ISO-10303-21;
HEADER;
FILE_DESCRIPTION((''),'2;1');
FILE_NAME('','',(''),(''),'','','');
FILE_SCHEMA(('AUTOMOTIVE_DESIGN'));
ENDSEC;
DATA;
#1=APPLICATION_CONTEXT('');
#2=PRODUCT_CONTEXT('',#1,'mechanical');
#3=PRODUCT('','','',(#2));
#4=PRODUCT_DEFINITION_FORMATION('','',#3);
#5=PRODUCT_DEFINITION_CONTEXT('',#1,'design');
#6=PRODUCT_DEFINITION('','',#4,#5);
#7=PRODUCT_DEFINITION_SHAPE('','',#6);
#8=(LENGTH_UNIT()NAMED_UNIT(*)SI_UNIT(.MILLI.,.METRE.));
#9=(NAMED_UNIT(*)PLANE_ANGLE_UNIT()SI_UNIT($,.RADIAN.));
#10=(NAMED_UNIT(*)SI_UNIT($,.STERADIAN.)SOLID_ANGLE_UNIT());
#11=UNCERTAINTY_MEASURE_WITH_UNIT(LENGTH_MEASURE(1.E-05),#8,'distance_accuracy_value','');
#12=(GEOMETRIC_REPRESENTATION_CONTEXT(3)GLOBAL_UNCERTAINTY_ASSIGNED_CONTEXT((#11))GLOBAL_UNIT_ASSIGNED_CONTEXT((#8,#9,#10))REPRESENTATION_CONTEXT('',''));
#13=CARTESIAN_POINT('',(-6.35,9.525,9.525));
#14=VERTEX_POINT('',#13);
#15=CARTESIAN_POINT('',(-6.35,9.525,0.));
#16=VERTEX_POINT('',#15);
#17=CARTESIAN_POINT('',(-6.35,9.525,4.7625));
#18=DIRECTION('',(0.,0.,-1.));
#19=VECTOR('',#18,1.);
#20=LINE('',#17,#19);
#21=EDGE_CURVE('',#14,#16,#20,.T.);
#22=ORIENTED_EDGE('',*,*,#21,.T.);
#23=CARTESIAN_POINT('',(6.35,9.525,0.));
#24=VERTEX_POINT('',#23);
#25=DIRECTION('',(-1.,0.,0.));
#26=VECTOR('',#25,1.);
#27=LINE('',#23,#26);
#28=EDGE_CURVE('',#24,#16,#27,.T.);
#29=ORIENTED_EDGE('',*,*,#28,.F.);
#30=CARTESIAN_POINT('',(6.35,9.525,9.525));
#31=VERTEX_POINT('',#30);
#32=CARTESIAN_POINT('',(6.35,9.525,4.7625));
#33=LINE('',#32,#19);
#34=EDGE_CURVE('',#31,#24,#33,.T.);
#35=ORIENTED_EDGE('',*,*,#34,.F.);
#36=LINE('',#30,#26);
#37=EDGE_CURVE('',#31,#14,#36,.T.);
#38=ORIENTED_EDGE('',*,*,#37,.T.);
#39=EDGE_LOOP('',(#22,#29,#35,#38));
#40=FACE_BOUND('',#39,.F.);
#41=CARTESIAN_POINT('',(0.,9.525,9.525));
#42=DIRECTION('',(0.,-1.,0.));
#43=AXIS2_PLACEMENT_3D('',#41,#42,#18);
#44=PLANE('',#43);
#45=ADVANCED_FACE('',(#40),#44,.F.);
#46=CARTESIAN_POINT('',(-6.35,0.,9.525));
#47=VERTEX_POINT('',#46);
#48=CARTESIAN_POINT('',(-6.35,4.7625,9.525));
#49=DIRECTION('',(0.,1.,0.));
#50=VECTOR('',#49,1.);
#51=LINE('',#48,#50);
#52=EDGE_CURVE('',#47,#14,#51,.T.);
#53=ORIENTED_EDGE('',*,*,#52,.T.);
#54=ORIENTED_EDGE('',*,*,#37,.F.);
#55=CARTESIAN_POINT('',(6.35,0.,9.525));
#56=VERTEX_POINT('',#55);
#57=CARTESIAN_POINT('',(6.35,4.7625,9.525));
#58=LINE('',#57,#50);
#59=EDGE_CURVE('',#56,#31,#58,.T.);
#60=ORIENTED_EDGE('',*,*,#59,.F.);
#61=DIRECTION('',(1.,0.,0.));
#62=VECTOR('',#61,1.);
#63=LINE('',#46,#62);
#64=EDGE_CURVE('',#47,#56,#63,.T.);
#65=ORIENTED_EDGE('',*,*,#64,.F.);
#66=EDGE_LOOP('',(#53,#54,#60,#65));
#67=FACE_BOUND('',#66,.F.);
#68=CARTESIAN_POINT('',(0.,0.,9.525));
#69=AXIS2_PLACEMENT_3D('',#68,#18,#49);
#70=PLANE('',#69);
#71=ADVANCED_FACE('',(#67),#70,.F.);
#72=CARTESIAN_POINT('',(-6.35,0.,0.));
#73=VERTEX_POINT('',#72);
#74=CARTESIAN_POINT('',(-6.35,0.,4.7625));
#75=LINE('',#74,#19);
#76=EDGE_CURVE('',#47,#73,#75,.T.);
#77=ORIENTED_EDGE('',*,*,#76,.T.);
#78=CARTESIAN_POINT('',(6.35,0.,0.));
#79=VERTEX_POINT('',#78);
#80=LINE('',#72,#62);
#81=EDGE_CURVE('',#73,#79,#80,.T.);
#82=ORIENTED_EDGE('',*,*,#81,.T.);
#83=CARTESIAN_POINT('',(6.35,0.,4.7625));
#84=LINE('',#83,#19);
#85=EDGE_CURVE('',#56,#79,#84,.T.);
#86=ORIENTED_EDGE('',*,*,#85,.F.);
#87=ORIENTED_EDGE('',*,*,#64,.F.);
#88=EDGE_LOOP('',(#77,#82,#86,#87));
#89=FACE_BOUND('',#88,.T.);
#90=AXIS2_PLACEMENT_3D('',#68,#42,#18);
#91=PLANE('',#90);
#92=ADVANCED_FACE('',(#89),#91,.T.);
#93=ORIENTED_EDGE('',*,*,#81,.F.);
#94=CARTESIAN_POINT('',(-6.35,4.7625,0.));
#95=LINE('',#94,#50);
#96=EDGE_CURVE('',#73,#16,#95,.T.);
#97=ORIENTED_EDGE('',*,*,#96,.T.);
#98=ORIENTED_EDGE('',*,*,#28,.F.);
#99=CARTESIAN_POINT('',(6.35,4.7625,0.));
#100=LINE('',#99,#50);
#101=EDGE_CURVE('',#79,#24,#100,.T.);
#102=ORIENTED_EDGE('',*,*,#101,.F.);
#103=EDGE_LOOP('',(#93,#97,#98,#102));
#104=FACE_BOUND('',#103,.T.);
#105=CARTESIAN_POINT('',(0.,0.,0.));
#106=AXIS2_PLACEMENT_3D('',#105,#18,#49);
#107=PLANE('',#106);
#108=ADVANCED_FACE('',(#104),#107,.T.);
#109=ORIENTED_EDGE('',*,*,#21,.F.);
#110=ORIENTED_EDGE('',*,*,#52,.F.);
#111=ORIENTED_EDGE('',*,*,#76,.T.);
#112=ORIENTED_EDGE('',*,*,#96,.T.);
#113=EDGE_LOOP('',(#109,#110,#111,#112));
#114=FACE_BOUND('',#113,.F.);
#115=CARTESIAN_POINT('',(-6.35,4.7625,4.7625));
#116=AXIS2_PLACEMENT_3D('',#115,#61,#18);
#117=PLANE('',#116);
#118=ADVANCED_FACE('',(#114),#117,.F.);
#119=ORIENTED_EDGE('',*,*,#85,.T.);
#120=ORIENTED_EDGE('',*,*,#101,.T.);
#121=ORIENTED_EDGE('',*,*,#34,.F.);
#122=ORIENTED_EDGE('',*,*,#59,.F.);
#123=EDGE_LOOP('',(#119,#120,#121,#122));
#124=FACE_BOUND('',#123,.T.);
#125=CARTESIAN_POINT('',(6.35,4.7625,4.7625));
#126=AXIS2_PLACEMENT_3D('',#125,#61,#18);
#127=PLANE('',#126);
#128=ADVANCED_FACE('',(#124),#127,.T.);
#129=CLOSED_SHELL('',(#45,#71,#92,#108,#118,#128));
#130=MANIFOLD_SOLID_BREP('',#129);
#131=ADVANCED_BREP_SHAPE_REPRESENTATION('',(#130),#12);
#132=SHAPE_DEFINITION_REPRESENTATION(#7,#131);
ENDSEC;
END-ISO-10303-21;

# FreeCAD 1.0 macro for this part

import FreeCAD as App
import Part
import Sketcher
from FreeCAD import Vector
Q = App.Units.Quantity

doc = App.newDocument("Part")
body = doc.addObject("PartDesign::Body", "Body")

# Sketch on YZ plane
sketch1 = doc.addObject("Sketcher::SketchObject", "Sketch")
body.addObject(sketch1)
sketch1.AttachmentSupport = (doc.YZ_Plane, [""])
sketch1.MapMode = "FlatFace"
sketch1.addGeometry([
    Part.LineSegment(Vector(10, 10, 0), Vector(0, 10, 0)),
    Part.LineSegment(Vector(0, 10, 0), Vector(0, 0, 0)),
    Part.LineSegment(Vector(0, 0, 0), Vector(10, 0, 0)),
    Part.LineSegment(Vector(10, 0, 0), Vector(10, 10, 0)),
], False)
sketch1.addConstraint([
    Sketcher.Constraint("Coincident", 0, 2, 1, 1),
    Sketcher.Constraint("Coincident", 1, 2, 2, 1),
    Sketcher.Constraint("Coincident", 2, 2, 3, 1),
    Sketcher.Constraint("Coincident", 3, 2, 0, 1),
    Sketcher.Constraint("Horizontal", 0),
    Sketcher.Constraint("Vertical", 1),
    Sketcher.Constraint("Horizontal", 2),
    Sketcher.Constraint("Vertical", 3),
    Sketcher.Constraint("Coincident", 1, 2, -1, 1),
    Sketcher.Constraint("Equal", 2, 1),
    Sketcher.Constraint("DistanceX", 0, 2, 0, 1, Q("0.375 in")),
])
pad1 = doc.addObject("PartDesign::Pad", "Pad")
body.addObject(pad1)
pad1.Profile = sketch1
pad1.Length = Q("0.5 in")
pad1.Midplane = True

doc.recompute()
